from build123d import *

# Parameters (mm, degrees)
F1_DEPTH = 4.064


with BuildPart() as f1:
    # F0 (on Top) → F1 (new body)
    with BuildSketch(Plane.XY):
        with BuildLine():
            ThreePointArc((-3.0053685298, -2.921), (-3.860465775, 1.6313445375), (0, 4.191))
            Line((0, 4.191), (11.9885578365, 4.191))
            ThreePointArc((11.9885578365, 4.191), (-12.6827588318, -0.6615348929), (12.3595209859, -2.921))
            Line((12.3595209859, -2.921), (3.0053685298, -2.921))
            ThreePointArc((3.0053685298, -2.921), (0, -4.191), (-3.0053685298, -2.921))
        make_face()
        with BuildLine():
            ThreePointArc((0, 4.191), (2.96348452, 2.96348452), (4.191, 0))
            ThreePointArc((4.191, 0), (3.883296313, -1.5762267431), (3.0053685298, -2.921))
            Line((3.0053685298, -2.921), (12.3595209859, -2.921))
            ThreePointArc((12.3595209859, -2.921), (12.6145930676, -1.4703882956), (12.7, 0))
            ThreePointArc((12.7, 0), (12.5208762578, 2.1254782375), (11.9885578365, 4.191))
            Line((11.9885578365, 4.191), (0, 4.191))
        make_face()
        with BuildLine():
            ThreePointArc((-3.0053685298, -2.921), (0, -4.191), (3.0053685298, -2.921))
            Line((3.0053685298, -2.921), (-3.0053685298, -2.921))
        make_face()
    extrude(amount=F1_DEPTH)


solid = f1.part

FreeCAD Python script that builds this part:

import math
import FreeCAD as App
import Part
import Sketcher
Q = App.Units.Quantity

doc = App.newDocument("Part")
params = doc.addObject("Spreadsheet::Sheet", "Params")
for row, (alias, value) in enumerate([
    ("sketch1_radius", "0.5 in"),
    ("sketch1_radius2", "0.165 in"),
    ("pad1_length", "0.16 in"),
], start=1):
    params.set(f"A{row}", alias)
    params.set(f"B{row}", "=" + value)
    params.setAlias(f"B{row}", alias)

body = doc.addObject("PartDesign::Body", "Body")

# Sketch on XY plane
sketch1 = body.newObject("Sketcher::SketchObject", "Sketch")
sketch1.AttachmentSupport = (doc.getObject("XY_Plane"), [""])
sketch1.MapMode = "FlatFace"
sketch1.addGeometry([
    Part.ArcOfCircle(Part.Circle(App.Vector(0, 0, 0), App.Vector(0, 0, 1), 12.7), math.radians(19), math.radians(347)),  # 0
    Part.ArcOfCircle(Part.Circle(App.Vector(0, 0, 0), App.Vector(0, 0, 1), 12.7), math.radians(-13.3), math.radians(0)),  # 1
    Part.ArcOfCircle(Part.Circle(App.Vector(0, 0, 0), App.Vector(0, 0, 1), 12.7), math.radians(0), math.radians(19.27)),  # 2
    Part.ArcOfCircle(Part.Circle(App.Vector(0, 0, 0), App.Vector(0, 0, 1), 4.2), math.radians(90), math.radians(224)),  # 3
    Part.ArcOfCircle(Part.Circle(App.Vector(0, 0, 0), App.Vector(0, 0, 1), 4.2), math.radians(0), math.radians(90)),  # 4
    Part.ArcOfCircle(Part.Circle(App.Vector(0, 0, 0), App.Vector(0, 0, 1), 4.2), math.radians(-44), math.radians(0)),  # 5
    Part.LineSegment(App.Vector(3, -2.9, 0), App.Vector(-3, -2.9, 0)),  # 6
], False)
sketch1.addConstraint([
    Sketcher.Constraint("Tangent", 0, 2, 1, 1),
    Sketcher.Constraint("Tangent", 1, 2, 2, 1),
    Sketcher.Constraint("Tangent", 2, 2, 0, 1),
    Sketcher.Constraint("Tangent", 3, 1, 4, 2),
    Sketcher.Constraint("Tangent", 4, 1, 5, 2),
    Sketcher.Constraint("Coincident", 5, 1, 6, 1),
    Sketcher.Constraint("Coincident", 6, 2, 3, 2),
    Sketcher.Constraint("Horizontal", 6),
    Sketcher.Constraint("Coincident", 0, 3, -1, 1),
    Sketcher.Constraint("Coincident", 3, 3, -1, 1),
    Sketcher.Constraint("Coincident", 5, 3, -1, 1),
    Sketcher.Constraint("PointOnObject", 1, 2, -1),
    Sketcher.Constraint("PointOnObject", 3, 1, -2),
    Sketcher.Constraint("PointOnObject", 4, 1, -1),
    Sketcher.Constraint("Horizontal", 2, 2, 3, 1),
    Sketcher.Constraint("Horizontal", 0, 2, 5, 1),
    Sketcher.Constraint("Radius", 0, Q("0.5 in")),
    Sketcher.Constraint("Radius", 3, Q("0.165 in")),
    Sketcher.Constraint("DistanceY", 0, 2, 2, 2, Q("0.28 in")),
])
sketch1.setExpression("Constraints[16]", "Params.sketch1_radius")
sketch1.setExpression("Constraints[17]", "Params.sketch1_radius2")
pad1 = body.newObject("PartDesign::Pad", "Pad")
pad1.Profile = sketch1
pad1.setExpression("Length", "Params.pad1_length")

doc.recompute()
